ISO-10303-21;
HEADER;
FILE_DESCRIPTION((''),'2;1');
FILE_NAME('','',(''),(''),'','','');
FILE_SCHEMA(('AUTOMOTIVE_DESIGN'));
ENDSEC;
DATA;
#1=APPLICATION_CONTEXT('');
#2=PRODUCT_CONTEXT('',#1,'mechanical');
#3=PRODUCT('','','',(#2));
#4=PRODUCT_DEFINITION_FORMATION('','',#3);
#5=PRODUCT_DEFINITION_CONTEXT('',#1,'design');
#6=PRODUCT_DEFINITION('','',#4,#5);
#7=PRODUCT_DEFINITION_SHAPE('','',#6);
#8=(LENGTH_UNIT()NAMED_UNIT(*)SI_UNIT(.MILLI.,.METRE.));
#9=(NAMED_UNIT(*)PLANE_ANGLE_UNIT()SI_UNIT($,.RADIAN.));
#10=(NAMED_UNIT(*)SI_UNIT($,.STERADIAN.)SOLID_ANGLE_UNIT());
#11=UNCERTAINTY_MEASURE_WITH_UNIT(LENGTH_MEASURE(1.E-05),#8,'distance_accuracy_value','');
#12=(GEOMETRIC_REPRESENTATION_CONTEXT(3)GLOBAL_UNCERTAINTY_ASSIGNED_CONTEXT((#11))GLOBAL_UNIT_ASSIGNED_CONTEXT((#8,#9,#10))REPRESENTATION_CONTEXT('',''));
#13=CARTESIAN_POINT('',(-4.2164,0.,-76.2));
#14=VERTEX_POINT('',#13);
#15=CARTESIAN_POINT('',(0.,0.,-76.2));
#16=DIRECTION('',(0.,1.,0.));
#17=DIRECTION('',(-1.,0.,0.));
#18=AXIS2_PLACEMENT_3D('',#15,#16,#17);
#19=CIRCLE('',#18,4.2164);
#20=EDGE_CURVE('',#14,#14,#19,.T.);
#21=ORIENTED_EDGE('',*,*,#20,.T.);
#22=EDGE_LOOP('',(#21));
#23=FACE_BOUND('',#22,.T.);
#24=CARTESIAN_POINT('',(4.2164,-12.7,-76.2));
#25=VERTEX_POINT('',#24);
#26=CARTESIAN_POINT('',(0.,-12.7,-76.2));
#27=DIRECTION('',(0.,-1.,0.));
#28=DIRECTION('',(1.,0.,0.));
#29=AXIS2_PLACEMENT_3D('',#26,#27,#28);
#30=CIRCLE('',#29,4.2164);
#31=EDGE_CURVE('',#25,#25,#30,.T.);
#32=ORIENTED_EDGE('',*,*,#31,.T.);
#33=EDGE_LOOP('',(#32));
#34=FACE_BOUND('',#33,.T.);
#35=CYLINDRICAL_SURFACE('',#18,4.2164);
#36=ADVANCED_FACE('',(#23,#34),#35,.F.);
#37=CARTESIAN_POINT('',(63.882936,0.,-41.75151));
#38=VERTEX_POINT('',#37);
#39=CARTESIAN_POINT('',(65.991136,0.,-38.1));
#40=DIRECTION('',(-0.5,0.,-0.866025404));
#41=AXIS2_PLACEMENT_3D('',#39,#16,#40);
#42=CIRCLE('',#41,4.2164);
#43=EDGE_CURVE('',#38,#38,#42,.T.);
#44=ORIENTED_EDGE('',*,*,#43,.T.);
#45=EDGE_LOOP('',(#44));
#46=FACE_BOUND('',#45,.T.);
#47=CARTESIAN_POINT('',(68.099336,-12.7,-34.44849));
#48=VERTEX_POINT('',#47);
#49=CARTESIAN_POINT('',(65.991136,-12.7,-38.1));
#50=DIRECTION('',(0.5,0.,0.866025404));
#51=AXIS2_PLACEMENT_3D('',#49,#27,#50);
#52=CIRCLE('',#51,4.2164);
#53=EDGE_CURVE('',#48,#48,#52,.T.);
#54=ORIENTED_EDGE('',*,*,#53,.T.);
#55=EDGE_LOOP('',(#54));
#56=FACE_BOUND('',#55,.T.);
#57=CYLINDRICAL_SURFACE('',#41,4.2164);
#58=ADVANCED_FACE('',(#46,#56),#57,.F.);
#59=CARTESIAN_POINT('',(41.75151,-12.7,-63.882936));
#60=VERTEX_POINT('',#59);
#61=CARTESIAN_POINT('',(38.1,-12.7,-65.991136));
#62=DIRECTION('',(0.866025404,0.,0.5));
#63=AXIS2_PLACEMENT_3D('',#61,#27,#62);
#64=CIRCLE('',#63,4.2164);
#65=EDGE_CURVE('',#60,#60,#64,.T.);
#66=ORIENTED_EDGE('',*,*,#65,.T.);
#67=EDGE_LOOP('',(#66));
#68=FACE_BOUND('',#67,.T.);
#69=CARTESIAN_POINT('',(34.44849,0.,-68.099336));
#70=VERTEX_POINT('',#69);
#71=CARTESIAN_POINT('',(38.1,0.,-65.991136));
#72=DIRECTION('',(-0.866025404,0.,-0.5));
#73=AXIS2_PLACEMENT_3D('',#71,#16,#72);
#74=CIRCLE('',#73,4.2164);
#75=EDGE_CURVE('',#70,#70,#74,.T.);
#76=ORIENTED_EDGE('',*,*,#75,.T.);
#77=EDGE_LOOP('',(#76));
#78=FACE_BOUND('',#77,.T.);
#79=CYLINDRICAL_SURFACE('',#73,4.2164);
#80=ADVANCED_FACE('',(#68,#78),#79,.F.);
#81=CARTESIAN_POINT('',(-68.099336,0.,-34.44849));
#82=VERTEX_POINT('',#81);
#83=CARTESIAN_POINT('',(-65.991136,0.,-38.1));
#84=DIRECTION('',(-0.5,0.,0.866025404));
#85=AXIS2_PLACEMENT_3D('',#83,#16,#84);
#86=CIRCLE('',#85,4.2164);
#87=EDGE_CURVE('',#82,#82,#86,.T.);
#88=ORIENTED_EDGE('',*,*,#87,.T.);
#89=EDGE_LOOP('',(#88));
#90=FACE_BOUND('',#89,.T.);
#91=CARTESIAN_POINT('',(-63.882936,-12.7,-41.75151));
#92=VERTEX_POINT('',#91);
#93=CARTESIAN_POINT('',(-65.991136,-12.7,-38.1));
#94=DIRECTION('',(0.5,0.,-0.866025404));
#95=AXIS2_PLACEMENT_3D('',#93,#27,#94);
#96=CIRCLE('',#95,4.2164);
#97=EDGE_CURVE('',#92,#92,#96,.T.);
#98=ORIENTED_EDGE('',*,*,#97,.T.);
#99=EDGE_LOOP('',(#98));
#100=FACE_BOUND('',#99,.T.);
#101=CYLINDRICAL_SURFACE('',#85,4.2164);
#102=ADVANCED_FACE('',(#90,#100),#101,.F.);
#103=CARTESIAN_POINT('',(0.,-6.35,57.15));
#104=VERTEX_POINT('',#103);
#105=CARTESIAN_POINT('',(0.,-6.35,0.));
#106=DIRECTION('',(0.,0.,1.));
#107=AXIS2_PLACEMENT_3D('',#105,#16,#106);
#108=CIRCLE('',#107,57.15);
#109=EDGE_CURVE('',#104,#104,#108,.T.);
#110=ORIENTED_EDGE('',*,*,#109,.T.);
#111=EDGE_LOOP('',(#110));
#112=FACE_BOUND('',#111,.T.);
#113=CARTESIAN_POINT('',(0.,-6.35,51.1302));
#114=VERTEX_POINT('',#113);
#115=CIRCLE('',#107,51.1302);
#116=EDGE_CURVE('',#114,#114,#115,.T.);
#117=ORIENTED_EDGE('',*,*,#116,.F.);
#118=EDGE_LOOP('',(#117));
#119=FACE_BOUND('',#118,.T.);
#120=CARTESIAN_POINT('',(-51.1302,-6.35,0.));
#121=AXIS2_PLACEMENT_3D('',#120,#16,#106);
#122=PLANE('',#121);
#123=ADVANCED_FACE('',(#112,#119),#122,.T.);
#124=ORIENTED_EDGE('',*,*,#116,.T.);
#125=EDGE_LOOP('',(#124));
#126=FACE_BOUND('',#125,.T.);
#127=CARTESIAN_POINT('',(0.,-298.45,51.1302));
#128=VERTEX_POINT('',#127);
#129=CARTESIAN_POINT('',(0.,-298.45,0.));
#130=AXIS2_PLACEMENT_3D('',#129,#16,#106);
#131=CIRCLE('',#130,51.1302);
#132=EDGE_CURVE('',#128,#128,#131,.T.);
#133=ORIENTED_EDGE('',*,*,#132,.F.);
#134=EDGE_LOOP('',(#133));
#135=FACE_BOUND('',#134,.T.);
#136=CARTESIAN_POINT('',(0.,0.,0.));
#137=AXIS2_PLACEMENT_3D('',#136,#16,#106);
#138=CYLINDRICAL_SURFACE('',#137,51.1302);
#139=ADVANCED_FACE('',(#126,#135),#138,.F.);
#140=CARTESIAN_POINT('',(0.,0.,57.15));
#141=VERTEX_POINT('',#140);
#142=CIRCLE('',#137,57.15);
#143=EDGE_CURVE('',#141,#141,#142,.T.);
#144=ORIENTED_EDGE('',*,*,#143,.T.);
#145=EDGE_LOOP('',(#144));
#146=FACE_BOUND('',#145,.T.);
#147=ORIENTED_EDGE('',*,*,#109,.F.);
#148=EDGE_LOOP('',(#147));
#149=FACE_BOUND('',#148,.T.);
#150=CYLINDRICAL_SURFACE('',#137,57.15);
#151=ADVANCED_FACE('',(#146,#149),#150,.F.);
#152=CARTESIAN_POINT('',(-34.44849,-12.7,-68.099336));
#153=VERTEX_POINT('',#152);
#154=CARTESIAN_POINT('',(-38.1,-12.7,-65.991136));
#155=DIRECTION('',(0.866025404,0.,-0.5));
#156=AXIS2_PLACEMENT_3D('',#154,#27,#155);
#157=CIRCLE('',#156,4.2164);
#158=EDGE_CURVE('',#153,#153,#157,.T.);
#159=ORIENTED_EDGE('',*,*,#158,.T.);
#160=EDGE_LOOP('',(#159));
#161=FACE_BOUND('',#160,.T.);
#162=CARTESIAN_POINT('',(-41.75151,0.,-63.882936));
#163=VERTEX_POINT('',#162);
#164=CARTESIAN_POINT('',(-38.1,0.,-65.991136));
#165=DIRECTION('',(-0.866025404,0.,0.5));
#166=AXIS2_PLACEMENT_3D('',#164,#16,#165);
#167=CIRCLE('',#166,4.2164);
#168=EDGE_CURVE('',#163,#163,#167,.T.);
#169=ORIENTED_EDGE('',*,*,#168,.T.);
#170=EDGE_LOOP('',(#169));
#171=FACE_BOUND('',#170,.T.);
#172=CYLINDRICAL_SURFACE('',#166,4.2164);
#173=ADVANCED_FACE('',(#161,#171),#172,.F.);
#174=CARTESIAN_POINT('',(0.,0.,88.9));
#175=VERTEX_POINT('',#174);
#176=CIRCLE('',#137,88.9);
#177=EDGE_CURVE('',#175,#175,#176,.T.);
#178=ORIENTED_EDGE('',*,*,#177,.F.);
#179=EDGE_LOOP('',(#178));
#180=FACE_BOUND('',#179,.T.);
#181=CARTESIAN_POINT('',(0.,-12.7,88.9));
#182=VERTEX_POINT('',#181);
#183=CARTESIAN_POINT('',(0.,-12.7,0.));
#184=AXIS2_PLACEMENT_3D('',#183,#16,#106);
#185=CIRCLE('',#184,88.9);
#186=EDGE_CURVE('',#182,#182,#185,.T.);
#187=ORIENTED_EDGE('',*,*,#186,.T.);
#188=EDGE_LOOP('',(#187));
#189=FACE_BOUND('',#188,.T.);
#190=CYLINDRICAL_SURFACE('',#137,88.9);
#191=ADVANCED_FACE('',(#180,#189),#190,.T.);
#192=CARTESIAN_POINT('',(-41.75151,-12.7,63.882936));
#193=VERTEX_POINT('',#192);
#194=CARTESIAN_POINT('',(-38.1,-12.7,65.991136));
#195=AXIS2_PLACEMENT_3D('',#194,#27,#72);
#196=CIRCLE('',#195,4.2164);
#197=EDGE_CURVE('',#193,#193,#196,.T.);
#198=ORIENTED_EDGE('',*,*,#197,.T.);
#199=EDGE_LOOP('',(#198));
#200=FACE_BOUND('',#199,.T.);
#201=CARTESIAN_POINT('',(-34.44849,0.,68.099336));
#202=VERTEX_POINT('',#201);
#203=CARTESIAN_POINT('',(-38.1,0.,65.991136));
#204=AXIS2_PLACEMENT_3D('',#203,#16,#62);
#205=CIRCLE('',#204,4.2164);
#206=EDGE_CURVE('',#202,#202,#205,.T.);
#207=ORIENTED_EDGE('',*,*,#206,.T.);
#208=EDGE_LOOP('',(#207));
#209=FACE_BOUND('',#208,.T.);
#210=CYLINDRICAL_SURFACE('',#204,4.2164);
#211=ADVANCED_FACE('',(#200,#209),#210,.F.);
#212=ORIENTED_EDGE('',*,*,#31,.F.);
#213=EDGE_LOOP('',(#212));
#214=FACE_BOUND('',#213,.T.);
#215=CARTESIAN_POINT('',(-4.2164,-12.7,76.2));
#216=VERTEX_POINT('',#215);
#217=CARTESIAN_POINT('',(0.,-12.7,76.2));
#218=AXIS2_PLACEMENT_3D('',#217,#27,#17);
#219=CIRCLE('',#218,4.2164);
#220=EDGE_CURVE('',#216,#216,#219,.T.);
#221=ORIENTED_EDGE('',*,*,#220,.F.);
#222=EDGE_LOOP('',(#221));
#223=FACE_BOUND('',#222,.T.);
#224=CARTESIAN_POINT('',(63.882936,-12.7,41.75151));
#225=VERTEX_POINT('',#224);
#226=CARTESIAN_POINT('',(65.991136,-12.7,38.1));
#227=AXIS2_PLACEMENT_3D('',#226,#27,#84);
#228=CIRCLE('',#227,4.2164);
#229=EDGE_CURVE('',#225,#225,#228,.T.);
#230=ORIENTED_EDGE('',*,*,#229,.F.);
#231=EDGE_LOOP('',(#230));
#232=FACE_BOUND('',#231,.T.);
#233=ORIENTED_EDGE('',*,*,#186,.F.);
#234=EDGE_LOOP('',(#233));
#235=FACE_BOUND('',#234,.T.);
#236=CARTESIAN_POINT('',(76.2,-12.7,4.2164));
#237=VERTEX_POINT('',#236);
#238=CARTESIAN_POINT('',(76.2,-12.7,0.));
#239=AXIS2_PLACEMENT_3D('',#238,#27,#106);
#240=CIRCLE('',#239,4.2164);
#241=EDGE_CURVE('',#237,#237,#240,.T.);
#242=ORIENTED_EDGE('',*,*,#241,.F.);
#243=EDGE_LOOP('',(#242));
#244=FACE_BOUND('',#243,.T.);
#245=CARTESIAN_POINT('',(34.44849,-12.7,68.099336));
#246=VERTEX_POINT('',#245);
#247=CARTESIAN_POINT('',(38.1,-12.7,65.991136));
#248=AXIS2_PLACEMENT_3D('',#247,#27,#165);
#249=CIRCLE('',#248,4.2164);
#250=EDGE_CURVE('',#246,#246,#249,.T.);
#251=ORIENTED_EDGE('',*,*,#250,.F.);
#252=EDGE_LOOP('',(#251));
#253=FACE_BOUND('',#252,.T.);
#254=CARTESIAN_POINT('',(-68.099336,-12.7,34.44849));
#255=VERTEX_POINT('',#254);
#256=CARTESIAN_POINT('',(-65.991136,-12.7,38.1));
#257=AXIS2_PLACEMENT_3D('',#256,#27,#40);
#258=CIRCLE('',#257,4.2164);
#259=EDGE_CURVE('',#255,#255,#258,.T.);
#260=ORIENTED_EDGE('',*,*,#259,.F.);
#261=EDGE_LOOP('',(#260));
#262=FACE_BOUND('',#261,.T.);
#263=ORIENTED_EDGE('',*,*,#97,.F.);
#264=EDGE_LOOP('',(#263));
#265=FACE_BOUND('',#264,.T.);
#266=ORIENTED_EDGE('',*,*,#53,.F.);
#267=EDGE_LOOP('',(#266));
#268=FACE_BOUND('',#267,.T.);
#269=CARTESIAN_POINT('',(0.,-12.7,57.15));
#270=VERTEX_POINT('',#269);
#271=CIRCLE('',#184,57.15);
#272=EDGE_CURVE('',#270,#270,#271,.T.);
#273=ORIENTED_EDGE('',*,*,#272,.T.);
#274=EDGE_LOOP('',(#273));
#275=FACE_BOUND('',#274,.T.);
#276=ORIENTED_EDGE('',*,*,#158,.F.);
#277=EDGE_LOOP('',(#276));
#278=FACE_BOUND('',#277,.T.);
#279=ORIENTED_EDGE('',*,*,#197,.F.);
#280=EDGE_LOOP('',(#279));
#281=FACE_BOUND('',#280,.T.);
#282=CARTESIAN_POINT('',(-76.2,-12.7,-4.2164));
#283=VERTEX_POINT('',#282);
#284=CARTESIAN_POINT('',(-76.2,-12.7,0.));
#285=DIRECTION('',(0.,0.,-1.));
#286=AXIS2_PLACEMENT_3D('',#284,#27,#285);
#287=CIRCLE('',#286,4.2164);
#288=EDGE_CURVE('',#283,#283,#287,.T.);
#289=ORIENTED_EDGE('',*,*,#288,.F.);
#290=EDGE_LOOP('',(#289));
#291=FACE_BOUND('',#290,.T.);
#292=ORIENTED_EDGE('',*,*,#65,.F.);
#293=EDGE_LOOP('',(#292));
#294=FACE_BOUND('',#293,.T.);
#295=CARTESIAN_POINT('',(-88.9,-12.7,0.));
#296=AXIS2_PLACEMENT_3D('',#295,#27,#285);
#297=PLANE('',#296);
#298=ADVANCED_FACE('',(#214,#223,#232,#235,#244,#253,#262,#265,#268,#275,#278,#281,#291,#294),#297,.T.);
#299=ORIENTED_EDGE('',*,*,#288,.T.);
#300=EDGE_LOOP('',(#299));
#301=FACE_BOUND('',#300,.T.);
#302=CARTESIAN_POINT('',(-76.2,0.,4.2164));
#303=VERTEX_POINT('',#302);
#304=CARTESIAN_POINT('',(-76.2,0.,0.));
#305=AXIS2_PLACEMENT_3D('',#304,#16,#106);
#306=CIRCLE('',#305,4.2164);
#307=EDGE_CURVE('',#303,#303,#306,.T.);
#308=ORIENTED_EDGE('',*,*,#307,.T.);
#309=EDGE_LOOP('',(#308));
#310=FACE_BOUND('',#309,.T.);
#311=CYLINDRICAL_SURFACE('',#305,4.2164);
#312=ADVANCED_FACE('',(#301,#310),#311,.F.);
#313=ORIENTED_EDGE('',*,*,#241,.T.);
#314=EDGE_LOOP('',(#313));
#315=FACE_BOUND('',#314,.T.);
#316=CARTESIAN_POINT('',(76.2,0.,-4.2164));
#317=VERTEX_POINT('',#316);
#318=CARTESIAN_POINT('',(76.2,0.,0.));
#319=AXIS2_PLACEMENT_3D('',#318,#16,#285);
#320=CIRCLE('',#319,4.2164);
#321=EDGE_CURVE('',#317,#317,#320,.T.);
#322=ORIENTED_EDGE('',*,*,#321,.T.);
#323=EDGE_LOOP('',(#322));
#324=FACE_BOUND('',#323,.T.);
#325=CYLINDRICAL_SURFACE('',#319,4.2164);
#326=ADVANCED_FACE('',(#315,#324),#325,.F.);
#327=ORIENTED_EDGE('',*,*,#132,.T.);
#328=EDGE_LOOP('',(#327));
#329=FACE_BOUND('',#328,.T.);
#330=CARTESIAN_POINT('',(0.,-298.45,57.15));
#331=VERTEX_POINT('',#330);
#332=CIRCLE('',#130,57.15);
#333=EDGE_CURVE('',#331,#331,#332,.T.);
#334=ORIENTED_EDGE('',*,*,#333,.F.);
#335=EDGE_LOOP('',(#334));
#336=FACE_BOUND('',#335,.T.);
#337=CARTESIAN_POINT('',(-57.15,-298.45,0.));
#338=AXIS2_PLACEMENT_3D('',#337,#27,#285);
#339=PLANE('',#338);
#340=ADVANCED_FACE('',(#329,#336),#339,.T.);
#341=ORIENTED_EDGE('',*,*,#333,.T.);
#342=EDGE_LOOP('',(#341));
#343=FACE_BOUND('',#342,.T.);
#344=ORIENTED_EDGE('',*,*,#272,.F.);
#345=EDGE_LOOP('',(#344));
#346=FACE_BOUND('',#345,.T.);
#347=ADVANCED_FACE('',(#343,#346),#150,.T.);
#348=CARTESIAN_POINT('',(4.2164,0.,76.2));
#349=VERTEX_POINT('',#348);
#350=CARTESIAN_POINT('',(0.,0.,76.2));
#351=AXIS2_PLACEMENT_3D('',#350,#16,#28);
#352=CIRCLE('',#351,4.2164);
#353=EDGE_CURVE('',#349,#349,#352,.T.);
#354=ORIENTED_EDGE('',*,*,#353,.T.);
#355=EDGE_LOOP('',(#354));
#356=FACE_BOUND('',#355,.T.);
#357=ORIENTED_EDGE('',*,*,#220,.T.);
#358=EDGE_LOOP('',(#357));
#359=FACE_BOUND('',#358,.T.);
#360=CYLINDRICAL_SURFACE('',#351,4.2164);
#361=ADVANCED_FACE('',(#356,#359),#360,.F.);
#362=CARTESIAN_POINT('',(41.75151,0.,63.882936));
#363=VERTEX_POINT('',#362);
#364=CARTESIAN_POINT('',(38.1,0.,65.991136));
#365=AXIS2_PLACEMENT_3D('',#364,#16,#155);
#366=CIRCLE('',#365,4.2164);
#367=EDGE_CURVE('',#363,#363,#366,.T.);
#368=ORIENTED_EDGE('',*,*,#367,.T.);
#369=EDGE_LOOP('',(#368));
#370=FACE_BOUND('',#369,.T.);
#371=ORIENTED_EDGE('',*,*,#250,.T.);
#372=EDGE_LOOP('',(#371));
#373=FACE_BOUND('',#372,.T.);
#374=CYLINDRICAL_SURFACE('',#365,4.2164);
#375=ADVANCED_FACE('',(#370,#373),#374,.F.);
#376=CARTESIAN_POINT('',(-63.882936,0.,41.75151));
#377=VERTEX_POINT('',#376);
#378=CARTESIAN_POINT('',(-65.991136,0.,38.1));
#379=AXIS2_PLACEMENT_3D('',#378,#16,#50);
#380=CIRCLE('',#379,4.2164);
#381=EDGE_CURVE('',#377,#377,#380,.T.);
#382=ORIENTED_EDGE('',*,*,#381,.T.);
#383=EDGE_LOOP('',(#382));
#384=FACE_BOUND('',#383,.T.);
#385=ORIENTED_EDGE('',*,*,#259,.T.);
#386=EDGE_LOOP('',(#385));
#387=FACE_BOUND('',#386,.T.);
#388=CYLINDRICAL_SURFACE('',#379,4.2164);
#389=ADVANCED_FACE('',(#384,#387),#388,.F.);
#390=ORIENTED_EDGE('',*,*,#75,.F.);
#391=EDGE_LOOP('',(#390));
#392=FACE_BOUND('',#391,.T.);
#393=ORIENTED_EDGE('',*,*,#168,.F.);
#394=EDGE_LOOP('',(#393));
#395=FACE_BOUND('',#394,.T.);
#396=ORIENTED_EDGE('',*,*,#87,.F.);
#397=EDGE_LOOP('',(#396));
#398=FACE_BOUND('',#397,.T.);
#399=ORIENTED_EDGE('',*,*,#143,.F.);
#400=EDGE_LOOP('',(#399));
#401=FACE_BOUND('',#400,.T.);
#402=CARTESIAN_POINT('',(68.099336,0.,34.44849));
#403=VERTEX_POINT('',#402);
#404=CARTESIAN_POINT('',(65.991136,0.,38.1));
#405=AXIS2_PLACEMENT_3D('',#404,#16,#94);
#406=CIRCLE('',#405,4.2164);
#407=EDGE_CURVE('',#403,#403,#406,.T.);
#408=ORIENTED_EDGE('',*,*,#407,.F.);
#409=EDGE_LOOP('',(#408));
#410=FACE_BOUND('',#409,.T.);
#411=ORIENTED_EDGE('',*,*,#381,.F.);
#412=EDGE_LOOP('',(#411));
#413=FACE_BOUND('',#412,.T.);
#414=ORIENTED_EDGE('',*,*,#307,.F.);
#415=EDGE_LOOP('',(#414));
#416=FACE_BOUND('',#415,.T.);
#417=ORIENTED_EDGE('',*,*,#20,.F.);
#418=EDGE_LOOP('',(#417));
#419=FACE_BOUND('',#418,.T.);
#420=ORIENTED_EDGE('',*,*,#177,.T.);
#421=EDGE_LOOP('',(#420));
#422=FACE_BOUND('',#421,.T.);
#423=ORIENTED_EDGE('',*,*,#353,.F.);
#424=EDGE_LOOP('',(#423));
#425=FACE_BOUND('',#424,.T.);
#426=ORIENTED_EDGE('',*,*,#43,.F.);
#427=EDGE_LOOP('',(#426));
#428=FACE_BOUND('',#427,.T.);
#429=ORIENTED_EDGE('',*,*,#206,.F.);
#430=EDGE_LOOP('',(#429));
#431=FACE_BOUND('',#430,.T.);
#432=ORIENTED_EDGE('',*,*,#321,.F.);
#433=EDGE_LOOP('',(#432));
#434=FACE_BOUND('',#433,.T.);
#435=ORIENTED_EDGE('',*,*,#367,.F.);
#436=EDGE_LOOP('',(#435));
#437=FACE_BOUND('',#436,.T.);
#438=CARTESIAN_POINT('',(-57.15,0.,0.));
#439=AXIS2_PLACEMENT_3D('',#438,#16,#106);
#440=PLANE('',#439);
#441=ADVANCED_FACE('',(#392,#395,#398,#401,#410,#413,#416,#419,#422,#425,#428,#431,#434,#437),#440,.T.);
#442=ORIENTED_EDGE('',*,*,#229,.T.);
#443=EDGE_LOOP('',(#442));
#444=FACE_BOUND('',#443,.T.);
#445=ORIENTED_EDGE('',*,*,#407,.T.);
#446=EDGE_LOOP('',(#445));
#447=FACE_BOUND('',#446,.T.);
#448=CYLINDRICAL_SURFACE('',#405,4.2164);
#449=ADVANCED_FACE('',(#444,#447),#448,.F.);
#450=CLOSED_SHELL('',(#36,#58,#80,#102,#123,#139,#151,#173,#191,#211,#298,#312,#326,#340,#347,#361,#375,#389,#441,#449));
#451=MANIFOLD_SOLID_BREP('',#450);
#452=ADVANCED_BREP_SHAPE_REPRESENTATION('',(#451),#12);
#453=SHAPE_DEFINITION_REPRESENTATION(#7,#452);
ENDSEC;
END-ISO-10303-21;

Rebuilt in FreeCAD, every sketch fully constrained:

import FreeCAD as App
import Part
import Sketcher
Q = App.Units.Quantity

doc = App.newDocument("Part")
body = doc.addObject("PartDesign::Body", "Body")

sketch1 = body.newObject("Sketcher::SketchObject", "Sketch")
sketch1.AttachmentSupport = (doc.getObject("XY_Plane"), [""])
sketch1.MapMode = "FlatFace"
sketch1.addGeometry([
    Part.LineSegment(App.Vector(-57, 0, 0), App.Vector(-89, 0, 0)),
    Part.LineSegment(App.Vector(-89, 0, 0), App.Vector(-89, -13, 0)),
    Part.LineSegment(App.Vector(-89, -13, 0), App.Vector(-57, -13, 0)),
    Part.LineSegment(App.Vector(-57, -13, 0), App.Vector(-57, -298, 0)),
    Part.LineSegment(App.Vector(-57, -298, 0), App.Vector(-51, -298, 0)),
    Part.LineSegment(App.Vector(-51, -298, 0), App.Vector(-51, -6, 0)),
    Part.LineSegment(App.Vector(-51, -6, 0), App.Vector(-57, -6, 0)),
    Part.LineSegment(App.Vector(-57, -6, 0), App.Vector(-57, 0, 0)),
], False)
sketch1.addConstraint([
    Sketcher.Constraint("Coincident", 0, 2, 1, 1),
    Sketcher.Constraint("Coincident", 1, 2, 2, 1),
    Sketcher.Constraint("Coincident", 2, 2, 3, 1),
    Sketcher.Constraint("Coincident", 3, 2, 4, 1),
    Sketcher.Constraint("Coincident", 4, 2, 5, 1),
    Sketcher.Constraint("Coincident", 5, 2, 6, 1),
    Sketcher.Constraint("Coincident", 6, 2, 7, 1),
    Sketcher.Constraint("Coincident", 7, 2, 0, 1),
    Sketcher.Constraint("Horizontal", 0),
    Sketcher.Constraint("Vertical", 1),
    Sketcher.Constraint("Horizontal", 2),
    Sketcher.Constraint("Vertical", 3),
    Sketcher.Constraint("Horizontal", 4),
    Sketcher.Constraint("Vertical", 5),
    Sketcher.Constraint("Horizontal", 6),
    Sketcher.Constraint("Vertical", 7),
    Sketcher.Constraint("PointOnObject", 0, 2, -1),
    Sketcher.Constraint("Vertical", 3, 2, 6, 2),
    Sketcher.Constraint("DistanceY", 1, 2, 1, 1, Q("0.5 in")),
    Sketcher.Constraint("DistanceY", 5, 1, 5, 2, Q("11.5 in")),
    Sketcher.Constraint("DistanceX", 0, 2, 0, 1, Q("1.25 in")),
    Sketcher.Constraint("DistanceY", 3, 2, 3, 1, Q("11.25 in")),
    Sketcher.Constraint("DistanceX", 0, 2, -1, 1, Q("3.5 in")),
    Sketcher.Constraint("DistanceX", 4, 1, 4, 2, Q("0.237 in")),
])
revolution = body.newObject("PartDesign::Revolution", "Revolution")
revolution.Profile = sketch1
revolution.ReferenceAxis = (sketch1, ["V_Axis"])
revolution.Angle = 360

sketch2 = body.newObject("Sketcher::SketchObject", "Sketch001")
sketch2.AttachmentSupport = (doc.getObject("XZ_Plane"), [""])
sketch2.MapMode = "FlatFace"
sketch2.addGeometry(Part.Circle(App.Vector(-76.2, 0, 0), App.Vector(0, 0, 1), 4.2), False)
sketch2.addConstraint([
    Sketcher.Constraint("PointOnObject", 0, 3, -1),
    Sketcher.Constraint("Diameter", 0, Q("0.332 in")),
    Sketcher.Constraint("DistanceX", 0, 3, -1, 1, Q("3 in")),
])
doc.recompute()
hole = body.newObject("PartDesign::Hole", "Hole")
hole.Profile = sketch2
hole.ThreadType = "None"
hole.Diameter = Q("0.332 in")
hole.DepthType = "ThroughAll"
hole.Reversed = True
doc.recompute()

polarpattern = body.newObject("PartDesign::PolarPattern", "PolarPattern")
polarpattern.Originals = [hole]
polarpattern.Axis = (doc.getObject("Y_Axis"), [""])
polarpattern.Angle = 360
polarpattern.Occurrences = 12
body.Tip = polarpattern

doc.recompute()
